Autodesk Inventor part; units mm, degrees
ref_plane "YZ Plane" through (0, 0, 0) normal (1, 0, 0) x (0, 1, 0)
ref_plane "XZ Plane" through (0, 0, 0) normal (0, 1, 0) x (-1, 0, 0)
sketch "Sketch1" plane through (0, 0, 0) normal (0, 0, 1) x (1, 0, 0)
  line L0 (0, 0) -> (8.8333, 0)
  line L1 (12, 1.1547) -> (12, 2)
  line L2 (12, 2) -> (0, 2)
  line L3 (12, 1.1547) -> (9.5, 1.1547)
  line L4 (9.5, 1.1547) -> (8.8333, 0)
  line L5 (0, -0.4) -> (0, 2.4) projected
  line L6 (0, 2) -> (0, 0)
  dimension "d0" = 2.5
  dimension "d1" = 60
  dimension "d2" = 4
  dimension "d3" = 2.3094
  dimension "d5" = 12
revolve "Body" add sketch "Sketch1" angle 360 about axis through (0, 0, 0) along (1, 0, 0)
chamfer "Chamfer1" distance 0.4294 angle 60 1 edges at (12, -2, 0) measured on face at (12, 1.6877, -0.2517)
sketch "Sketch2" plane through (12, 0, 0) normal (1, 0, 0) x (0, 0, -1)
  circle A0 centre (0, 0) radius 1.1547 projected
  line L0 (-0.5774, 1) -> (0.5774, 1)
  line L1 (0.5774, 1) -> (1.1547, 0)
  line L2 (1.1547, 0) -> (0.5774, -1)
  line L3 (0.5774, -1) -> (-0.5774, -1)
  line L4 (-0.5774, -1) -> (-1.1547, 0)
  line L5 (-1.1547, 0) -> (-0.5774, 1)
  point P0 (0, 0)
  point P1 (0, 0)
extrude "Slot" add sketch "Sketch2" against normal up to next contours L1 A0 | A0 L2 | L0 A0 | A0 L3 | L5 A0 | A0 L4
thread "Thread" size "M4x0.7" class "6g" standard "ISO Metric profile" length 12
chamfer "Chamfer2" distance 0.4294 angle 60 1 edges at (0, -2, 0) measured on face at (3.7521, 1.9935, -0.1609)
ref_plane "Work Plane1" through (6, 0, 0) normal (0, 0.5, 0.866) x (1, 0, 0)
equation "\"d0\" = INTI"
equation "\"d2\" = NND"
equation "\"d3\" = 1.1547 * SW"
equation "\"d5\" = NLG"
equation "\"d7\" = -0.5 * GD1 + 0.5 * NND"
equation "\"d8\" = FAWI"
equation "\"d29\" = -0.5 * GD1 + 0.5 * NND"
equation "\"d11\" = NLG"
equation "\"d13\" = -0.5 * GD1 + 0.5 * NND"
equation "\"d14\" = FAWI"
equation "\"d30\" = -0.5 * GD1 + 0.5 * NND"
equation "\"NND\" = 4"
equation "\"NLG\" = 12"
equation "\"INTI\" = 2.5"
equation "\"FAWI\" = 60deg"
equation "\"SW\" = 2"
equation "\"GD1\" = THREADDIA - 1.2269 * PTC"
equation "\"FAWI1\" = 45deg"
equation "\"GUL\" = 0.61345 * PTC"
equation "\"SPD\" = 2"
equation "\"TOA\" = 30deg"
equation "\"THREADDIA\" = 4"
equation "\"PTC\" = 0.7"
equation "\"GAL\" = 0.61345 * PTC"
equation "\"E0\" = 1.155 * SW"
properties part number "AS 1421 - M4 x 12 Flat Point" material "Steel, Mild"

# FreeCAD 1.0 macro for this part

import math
import FreeCAD as App
import Part
import Sketcher

V = App.Vector


def edges_at(feature, points):
    """Names of the edges that pass closest to the given points."""
    edges = feature.Shape.Edges
    near = lambda p: min(range(len(edges)), key=lambda i: edges[i].distToShape(Part.Vertex(*p))[0])
    return sorted({f"Edge{near(p) + 1}" for p in points})


def add_polygon(sketch, points):
    """Adds a closed chain of lines whose ends are joined by coincident constraints."""
    first, n = sketch.GeometryCount, len(points)
    for a, b in zip(points, points[1:] + points[:1]):
        sketch.addGeometry(Part.LineSegment(App.Vector(*a, 0), App.Vector(*b, 0)), False)
    for i in range(n):
        sketch.addConstraint(Sketcher.Constraint("Coincident", first + i, 2, first + (i + 1) % n, 1))

doc = App.newDocument("Part")
body = doc.addObject("PartDesign::Body", "Body")

# Sketch on XY plane
sketch1 = body.newObject("Sketcher::SketchObject", "Sketch")
sketch1.AttachmentSupport = (doc.getObject("XY_Plane"), [""])
sketch1.MapMode = "FlatFace"
add_polygon(sketch1, [(0, 2), (0, 0), (8.8, 0), (9.5, 1.2), (12, 1.2), (12, 2)])  # lines 0-5
sketch1.addConstraint([
    Sketcher.Constraint("Vertical", 0),
    Sketcher.Constraint("Horizontal", 1),
    Sketcher.Constraint("Horizontal", 3),
    Sketcher.Constraint("Vertical", 4),
    Sketcher.Constraint("Horizontal", 5),
    Sketcher.Constraint("Coincident", 0, 2, -1, 1),
    Sketcher.Constraint("DistanceX", 5, 2, 5, 1, 12.0),
    Sketcher.Constraint("DistanceX", 3, 1, 3, 2, 2.5),
    Sketcher.Constraint("DistanceY", 0, 2, 0, 1, 2.0),
    Sketcher.Constraint("DistanceX", 1, 1, 1, 2, 8.8333),
    Sketcher.Constraint("DistanceY", 4, 1, 4, 2, 0.8453),
])
revolution = body.newObject("PartDesign::Revolution", "Revolution")
revolution.Profile = sketch1
revolution.ReferenceAxis = (sketch1, ["H_Axis"])
revolution.Angle = 360
doc.recompute()

chamfer = body.newObject("PartDesign::Chamfer", "Chamfer")
chamfer.Base = (revolution, edges_at(revolution, [(12, -2, 0)]))
chamfer.ChamferType = "Distance and Angle"
chamfer.Size = 0.4294
chamfer.Angle = 60

# Sketch on YZ plane
sketch2 = body.newObject("Sketcher::SketchObject", "Sketch001")
sketch2.AttachmentSupport = (doc.getObject("YZ_Plane"), [""])
sketch2.MapMode = "FlatFace"
sketch2.AttachmentOffset = App.Placement(V(0, 0, 12), App.Rotation())
sketch2.addGeometry([
    Part.LineSegment(V(1, -0.6, 0), V(0, -1.2, 0)),  # 0
    Part.ArcOfCircle(Part.Circle(V(0, 0, 0), V(0, 0, 1), 1.2), math.radians(-90), math.radians(-30)),  # 1
    Part.ArcOfCircle(Part.Circle(V(0, 0, 0), V(0, 0, 1), 1.2), math.radians(-150), math.radians(-90)),  # 2
    Part.LineSegment(V(0, -1.2, 0), V(-1, -0.6, 0)),  # 3
    Part.LineSegment(V(1, 0.6, 0), V(1, -0.6, 0)),  # 4
    Part.ArcOfCircle(Part.Circle(V(0, 0, 0), V(0, 0, 1), 1.2), math.radians(-30), math.radians(30)),  # 5
    Part.ArcOfCircle(Part.Circle(V(0, 0, 0), V(0, 0, 1), 1.2), math.radians(150), math.radians(210)),  # 6
    Part.LineSegment(V(-1, 0.6, 0), V(-1, -0.6, 0)),  # 7
    Part.LineSegment(V(0, 1.2, 0), V(1, 0.6, 0)),  # 8
    Part.ArcOfCircle(Part.Circle(V(0, 0, 0), V(0, 0, 1), 1.2), math.radians(30), math.radians(90)),  # 9
    Part.ArcOfCircle(Part.Circle(V(0, 0, 0), V(0, 0, 1), 1.2), math.radians(90), math.radians(150)),  # 10
    Part.LineSegment(V(0, 1.2, 0), V(-1, 0.6, 0)),  # 11
], False)
sketch2.addConstraint([
    Sketcher.Constraint("Coincident", 0, 1, 1, 2),
    Sketcher.Constraint("Coincident", 1, 1, 0, 2),
    Sketcher.Constraint("Coincident", 2, 1, 3, 2),
    Sketcher.Constraint("Coincident", 3, 1, 2, 2),
    Sketcher.Constraint("Coincident", 4, 1, 5, 2),
    Sketcher.Constraint("Coincident", 5, 1, 4, 2),
    Sketcher.Constraint("Coincident", 6, 1, 7, 1),
    Sketcher.Constraint("Coincident", 7, 2, 6, 2),
    Sketcher.Constraint("Coincident", 8, 1, 9, 2),
    Sketcher.Constraint("Coincident", 9, 1, 8, 2),
    Sketcher.Constraint("Coincident", 10, 1, 11, 1),
    Sketcher.Constraint("Coincident", 11, 2, 10, 2),
    Sketcher.Constraint("Vertical", 4),
    Sketcher.Constraint("Vertical", 7),
    Sketcher.Constraint("Coincident", 1, 3, -1, 1),
    Sketcher.Constraint("Coincident", 2, 3, -1, 1),
    Sketcher.Constraint("Coincident", 5, 3, -1, 1),
    Sketcher.Constraint("Coincident", 6, 3, -1, 1),
    Sketcher.Constraint("Coincident", 9, 3, -1, 1),
    Sketcher.Constraint("Coincident", 10, 3, -1, 1),
    Sketcher.Constraint("Coincident", 3, 1, 1, 1),
    Sketcher.Constraint("Coincident", 5, 1, 0, 1),
    Sketcher.Constraint("Coincident", 7, 2, 2, 1),
    Sketcher.Constraint("Coincident", 9, 1, 4, 1),
    Sketcher.Constraint("Coincident", 10, 1, 8, 1),
    Sketcher.Constraint("PointOnObject", 1, 1, -2),
    Sketcher.Constraint("PointOnObject", 8, 1, -2),
    Sketcher.Constraint("Parallel", 3, 8),
    Sketcher.Constraint("Parallel", 0, 11),
    Sketcher.Constraint("DistanceX", -1, 1, 0, 1, 1.0),
    Sketcher.Constraint("Radius", 1, 1.1547),
])
pad1 = body.newObject("PartDesign::Pad", "Pad")
pad1.Profile = sketch2
pad1.Type = "UpToFirst"
pad1.Reversed = True
doc.recompute()

chamfer2 = body.newObject("PartDesign::Chamfer", "Chamfer001")
chamfer2.Base = (pad1, edges_at(pad1, [(0, -2, 0)]))
chamfer2.ChamferType = "Distance and Angle"
chamfer2.Size = 0.4294
chamfer2.Angle = 60

doc.recompute()
